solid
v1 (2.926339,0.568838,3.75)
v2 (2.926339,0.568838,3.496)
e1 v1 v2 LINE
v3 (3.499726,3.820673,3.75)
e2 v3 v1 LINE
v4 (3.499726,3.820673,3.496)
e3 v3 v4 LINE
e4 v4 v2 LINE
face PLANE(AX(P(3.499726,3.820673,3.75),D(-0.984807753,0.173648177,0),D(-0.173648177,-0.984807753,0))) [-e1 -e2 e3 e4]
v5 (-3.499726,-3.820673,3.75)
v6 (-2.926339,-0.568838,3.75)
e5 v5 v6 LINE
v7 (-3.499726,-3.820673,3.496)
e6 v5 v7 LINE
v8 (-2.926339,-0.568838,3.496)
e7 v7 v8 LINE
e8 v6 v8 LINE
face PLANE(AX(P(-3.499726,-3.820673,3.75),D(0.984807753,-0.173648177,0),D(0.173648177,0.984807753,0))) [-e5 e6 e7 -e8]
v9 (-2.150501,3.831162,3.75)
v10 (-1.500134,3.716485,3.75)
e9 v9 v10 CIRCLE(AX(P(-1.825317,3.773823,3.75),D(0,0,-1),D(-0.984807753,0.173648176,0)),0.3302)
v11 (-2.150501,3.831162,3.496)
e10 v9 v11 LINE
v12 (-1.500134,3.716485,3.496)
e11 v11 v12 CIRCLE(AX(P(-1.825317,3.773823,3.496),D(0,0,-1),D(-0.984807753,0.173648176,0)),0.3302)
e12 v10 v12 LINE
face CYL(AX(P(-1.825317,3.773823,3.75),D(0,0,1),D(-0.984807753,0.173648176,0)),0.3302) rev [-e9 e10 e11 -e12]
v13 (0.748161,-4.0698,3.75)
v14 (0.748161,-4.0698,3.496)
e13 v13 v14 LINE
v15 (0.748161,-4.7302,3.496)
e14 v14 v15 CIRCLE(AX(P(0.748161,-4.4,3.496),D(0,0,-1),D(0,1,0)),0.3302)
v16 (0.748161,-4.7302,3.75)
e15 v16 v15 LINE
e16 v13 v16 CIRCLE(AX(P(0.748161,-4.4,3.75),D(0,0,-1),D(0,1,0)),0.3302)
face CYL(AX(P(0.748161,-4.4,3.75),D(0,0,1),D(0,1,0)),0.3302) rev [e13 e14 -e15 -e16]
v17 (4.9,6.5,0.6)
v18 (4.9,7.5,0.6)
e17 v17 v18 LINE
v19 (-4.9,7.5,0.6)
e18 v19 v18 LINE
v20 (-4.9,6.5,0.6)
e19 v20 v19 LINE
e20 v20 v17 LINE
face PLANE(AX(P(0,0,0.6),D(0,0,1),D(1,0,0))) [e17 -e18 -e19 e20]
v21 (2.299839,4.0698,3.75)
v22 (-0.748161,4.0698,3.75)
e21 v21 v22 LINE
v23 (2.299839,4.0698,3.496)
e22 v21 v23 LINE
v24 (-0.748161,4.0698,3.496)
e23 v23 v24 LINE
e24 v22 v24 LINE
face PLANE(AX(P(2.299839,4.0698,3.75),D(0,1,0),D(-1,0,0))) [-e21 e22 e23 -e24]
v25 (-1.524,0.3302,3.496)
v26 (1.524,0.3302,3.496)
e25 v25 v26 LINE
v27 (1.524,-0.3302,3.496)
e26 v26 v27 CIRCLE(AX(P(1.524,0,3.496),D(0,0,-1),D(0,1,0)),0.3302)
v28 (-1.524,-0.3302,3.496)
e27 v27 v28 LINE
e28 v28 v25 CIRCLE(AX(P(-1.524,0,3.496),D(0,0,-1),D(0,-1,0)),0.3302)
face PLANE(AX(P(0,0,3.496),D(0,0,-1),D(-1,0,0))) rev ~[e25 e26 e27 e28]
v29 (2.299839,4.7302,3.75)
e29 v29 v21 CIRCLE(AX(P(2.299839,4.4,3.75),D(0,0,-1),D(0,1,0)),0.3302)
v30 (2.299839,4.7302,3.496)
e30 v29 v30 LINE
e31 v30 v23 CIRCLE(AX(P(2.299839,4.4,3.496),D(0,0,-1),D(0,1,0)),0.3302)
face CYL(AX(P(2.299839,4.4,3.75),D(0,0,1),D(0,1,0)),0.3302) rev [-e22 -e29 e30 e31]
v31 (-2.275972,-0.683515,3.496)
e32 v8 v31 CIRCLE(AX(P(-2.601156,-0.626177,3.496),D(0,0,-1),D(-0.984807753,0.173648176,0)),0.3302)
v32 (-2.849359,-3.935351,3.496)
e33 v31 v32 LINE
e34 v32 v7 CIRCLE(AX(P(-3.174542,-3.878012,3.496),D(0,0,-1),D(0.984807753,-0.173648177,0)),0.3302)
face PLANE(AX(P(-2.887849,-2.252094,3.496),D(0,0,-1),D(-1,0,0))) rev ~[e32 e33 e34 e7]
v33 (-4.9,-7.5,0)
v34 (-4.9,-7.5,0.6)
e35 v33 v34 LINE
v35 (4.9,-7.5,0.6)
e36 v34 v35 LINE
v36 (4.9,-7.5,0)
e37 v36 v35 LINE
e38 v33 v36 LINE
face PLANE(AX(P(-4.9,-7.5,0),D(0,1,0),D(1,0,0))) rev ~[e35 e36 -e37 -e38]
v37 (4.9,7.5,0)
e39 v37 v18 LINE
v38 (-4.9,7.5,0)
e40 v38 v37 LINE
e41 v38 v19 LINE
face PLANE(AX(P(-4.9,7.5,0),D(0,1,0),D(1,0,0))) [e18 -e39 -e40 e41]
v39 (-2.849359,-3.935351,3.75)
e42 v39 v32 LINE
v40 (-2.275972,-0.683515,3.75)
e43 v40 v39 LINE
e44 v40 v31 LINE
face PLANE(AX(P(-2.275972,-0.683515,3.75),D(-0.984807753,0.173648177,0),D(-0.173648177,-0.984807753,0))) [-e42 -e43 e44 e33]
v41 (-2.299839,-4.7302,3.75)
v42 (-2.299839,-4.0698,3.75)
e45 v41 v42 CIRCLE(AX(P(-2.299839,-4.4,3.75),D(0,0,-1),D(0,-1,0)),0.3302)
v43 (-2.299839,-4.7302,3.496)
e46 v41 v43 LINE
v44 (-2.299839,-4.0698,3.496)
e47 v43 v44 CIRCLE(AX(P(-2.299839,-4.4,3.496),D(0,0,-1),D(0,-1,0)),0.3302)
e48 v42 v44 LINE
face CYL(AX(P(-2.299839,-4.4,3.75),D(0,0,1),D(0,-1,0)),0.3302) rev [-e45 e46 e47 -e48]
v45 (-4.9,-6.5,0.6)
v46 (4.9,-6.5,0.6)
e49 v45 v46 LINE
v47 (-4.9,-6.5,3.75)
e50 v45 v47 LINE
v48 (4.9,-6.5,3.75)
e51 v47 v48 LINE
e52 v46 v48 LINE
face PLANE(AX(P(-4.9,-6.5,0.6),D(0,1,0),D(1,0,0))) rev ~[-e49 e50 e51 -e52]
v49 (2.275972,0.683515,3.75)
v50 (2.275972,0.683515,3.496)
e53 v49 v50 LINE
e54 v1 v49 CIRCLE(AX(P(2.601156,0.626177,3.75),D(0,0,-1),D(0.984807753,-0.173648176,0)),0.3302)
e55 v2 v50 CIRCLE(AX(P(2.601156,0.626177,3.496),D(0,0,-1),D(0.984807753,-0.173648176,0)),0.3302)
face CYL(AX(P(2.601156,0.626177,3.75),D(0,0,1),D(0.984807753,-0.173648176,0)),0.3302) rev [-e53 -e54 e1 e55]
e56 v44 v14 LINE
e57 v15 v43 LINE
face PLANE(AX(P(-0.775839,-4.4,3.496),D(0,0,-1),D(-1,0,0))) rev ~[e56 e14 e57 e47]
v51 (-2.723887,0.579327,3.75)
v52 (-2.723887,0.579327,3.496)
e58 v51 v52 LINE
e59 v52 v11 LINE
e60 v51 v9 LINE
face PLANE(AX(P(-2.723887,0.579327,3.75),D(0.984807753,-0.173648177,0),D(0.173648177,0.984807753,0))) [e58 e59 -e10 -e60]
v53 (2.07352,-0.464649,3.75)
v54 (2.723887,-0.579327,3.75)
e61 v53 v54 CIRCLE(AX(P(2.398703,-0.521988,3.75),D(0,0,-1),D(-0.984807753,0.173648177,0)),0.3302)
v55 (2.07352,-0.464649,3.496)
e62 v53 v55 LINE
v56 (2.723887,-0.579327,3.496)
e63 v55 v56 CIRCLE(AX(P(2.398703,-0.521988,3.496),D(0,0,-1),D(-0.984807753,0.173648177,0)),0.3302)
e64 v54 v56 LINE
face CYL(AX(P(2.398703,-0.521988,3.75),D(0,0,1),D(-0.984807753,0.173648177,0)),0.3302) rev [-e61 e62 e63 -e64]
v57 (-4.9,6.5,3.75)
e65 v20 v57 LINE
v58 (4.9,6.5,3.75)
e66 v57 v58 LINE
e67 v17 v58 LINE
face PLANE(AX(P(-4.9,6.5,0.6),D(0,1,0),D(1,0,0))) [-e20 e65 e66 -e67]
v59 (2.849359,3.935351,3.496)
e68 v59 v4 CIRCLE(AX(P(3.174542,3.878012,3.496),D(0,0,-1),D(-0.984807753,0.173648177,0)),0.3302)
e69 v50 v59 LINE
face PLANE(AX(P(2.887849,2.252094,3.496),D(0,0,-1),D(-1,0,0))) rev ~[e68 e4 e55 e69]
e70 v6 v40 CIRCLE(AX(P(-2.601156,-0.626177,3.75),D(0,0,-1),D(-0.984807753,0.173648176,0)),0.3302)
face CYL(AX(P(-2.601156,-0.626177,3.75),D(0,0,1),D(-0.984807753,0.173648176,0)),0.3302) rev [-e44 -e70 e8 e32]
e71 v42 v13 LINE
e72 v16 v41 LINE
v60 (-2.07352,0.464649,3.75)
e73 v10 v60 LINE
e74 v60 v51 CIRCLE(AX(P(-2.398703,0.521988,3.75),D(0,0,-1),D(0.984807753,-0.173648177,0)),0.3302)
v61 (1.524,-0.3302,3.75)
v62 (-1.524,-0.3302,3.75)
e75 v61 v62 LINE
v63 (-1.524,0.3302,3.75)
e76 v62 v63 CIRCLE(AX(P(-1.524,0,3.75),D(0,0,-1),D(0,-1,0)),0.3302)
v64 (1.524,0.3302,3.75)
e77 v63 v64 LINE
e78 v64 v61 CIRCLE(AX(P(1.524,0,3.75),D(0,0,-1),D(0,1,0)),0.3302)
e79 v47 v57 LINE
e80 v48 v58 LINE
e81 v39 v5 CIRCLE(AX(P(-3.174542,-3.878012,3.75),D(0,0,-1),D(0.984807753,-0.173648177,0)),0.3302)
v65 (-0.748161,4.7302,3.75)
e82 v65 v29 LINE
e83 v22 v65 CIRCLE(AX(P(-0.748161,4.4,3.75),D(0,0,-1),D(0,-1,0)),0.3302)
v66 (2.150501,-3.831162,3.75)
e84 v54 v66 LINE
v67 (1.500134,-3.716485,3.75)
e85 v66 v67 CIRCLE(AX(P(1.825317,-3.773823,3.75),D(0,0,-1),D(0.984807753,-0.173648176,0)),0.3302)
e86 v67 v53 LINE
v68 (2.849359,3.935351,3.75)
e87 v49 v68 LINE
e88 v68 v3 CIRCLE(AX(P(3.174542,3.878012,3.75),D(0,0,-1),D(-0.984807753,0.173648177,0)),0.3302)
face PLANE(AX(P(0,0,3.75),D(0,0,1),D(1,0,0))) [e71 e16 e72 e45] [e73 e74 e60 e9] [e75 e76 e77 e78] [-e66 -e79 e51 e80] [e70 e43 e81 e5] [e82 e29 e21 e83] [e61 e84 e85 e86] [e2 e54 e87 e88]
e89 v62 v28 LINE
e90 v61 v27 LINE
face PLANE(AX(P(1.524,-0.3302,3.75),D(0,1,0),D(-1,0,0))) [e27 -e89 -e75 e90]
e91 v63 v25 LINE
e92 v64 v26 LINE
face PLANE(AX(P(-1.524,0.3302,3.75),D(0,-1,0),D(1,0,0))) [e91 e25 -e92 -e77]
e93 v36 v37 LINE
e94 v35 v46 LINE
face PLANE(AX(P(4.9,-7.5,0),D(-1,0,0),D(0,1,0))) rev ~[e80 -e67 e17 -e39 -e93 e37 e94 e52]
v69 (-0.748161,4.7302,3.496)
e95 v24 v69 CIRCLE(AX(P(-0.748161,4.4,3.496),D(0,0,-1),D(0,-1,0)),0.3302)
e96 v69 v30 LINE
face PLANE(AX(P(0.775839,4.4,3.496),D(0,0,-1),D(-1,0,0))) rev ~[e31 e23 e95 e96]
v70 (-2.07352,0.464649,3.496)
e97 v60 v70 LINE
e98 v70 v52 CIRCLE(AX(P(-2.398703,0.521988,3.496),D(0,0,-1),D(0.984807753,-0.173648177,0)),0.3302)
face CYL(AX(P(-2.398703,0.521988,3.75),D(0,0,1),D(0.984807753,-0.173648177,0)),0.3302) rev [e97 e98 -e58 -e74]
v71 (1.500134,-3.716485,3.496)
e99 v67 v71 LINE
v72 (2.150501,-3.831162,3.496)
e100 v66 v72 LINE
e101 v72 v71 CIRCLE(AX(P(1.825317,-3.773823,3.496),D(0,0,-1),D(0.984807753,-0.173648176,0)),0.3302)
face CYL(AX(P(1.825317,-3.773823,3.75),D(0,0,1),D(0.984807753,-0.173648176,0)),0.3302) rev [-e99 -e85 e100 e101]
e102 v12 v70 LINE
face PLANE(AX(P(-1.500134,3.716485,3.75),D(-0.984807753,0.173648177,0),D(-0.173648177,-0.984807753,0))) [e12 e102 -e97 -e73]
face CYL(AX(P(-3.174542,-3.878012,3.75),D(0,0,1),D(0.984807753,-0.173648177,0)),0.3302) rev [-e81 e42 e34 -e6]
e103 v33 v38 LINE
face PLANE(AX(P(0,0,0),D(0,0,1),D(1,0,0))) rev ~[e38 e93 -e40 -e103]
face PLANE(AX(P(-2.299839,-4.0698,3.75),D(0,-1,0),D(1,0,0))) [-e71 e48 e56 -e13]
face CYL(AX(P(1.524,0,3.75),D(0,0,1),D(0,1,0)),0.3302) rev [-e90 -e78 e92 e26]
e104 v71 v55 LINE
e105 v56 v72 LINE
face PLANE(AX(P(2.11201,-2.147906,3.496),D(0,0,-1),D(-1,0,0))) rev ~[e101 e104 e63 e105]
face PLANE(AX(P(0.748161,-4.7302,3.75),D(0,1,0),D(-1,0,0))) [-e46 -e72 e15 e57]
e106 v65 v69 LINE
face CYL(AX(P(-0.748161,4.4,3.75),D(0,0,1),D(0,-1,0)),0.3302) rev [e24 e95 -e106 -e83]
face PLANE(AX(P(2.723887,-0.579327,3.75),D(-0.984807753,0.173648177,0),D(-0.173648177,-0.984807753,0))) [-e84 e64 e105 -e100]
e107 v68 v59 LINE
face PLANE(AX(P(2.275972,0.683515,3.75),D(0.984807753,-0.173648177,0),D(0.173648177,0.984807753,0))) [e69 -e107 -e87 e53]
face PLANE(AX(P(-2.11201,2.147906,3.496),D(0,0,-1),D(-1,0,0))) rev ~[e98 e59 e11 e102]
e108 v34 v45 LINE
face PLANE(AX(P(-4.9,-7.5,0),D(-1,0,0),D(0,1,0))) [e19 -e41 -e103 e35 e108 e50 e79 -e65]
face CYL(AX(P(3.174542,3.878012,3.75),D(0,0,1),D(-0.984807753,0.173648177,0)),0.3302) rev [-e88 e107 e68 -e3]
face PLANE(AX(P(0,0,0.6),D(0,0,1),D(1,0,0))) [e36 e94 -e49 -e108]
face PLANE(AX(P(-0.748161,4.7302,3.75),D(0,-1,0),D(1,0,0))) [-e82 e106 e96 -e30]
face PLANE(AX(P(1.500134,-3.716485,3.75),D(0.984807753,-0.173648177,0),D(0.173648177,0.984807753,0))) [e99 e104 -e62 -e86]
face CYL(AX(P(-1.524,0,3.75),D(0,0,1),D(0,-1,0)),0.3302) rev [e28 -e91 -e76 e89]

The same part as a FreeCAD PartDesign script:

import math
import FreeCAD as App
import Part
import Sketcher
from FreeCAD import Vector
Q = App.Units.Quantity

doc = App.newDocument("Part")
body = doc.addObject("PartDesign::Body", "Body")

# Sketch on XY plane
sketch1 = body.newObject("Sketcher::SketchObject", "Sketch")
sketch1.AttachmentSupport = (doc.getObject("XY_Plane"), [""])
sketch1.MapMode = "FlatFace"
sketch1.addGeometry(Part.LineSegment(Vector(-5, 8, 0), Vector(-5, -8, 0)), False)
sketch1.addGeometry(Part.LineSegment(Vector(-5, -8, 0), Vector(5, -8, 0)), False)
sketch1.addGeometry(Part.LineSegment(Vector(5, -8, 0), Vector(5, 8, 0)), False)
sketch1.addGeometry(Part.LineSegment(Vector(5, 8, 0), Vector(-5, 8, 0)), False)
sketch1.addConstraint(Sketcher.Constraint("Coincident", 0, 2, 1, 1))
sketch1.addConstraint(Sketcher.Constraint("Coincident", 1, 2, 2, 1))
sketch1.addConstraint(Sketcher.Constraint("Coincident", 2, 2, 3, 1))
sketch1.addConstraint(Sketcher.Constraint("Coincident", 3, 2, 0, 1))
sketch1.addConstraint(Sketcher.Constraint("Vertical", 0))
sketch1.addConstraint(Sketcher.Constraint("Horizontal", 1))
sketch1.addConstraint(Sketcher.Constraint("Vertical", 2))
sketch1.addConstraint(Sketcher.Constraint("Horizontal", 3))
sketch1.addConstraint(Sketcher.Constraint("Symmetric", 0, 2, 2, 2, -1, 1))
sketch1.addConstraint(Sketcher.Constraint("DistanceY", 0, 2, 0, 1, 15.0))
sketch1.addConstraint(Sketcher.Constraint("DistanceX", 1, 1, 1, 2, 9.8))
pad1 = body.newObject("PartDesign::Pad", "Pad")
pad1.Profile = sketch1
pad1.Length = 0.6

# Sketch on XY plane
sketch2 = body.newObject("Sketcher::SketchObject", "Sketch001")
sketch2.AttachmentSupport = (doc.getObject("XY_Plane"), [""])
sketch2.MapMode = "FlatFace"
sketch2.AttachmentOffset = App.Placement(Vector(0, 0, 0.6), App.Rotation())
sketch2.addGeometry(Part.LineSegment(Vector(-5, 6, 0), Vector(-5, -6, 0)), False)
sketch2.addGeometry(Part.LineSegment(Vector(-5, -6, 0), Vector(5, -6, 0)), False)
sketch2.addGeometry(Part.LineSegment(Vector(5, -6, 0), Vector(5, 6, 0)), False)
sketch2.addGeometry(Part.LineSegment(Vector(5, 6, 0), Vector(-5, 6, 0)), False)
sketch2.addConstraint(Sketcher.Constraint("Coincident", 0, 2, 1, 1))
sketch2.addConstraint(Sketcher.Constraint("Coincident", 1, 2, 2, 1))
sketch2.addConstraint(Sketcher.Constraint("Coincident", 2, 2, 3, 1))
sketch2.addConstraint(Sketcher.Constraint("Coincident", 3, 2, 0, 1))
sketch2.addConstraint(Sketcher.Constraint("Vertical", 0))
sketch2.addConstraint(Sketcher.Constraint("Horizontal", 1))
sketch2.addConstraint(Sketcher.Constraint("Vertical", 2))
sketch2.addConstraint(Sketcher.Constraint("Horizontal", 3))
sketch2.addConstraint(Sketcher.Constraint("Symmetric", 0, 2, 2, 2, -1, 1))
sketch2.addConstraint(Sketcher.Constraint("DistanceY", 0, 2, 0, 1, 13.0))
sketch2.addConstraint(Sketcher.Constraint("DistanceX", 1, 1, 1, 2, 9.8))
pad2 = body.newObject("PartDesign::Pad", "Pad001")
pad2.Profile = sketch2
pad2.Length = 3.15

# Sketch on XY plane
sketch3 = body.newObject("Sketcher::SketchObject", "Sketch002")
sketch3.AttachmentSupport = (doc.getObject("XY_Plane"), [""])
sketch3.MapMode = "FlatFace"
sketch3.AttachmentOffset = App.Placement(Vector(0, 0, 3.75), App.Rotation())
sketch3.addGeometry(Part.LineSegment(Vector(-2.15, 3.83, 0), Vector(-2.72, 0.58, 0)), False)
sketch3.addGeometry(Part.ArcOfCircle(Part.Circle(Vector(-2.4, 0.52, 0), Vector(0, 0, 1), 0.33), math.radians(170), math.radians(350)), False)
sketch3.addGeometry(Part.LineSegment(Vector(-2.07, 0.46, 0), Vector(-1.5, 3.72, 0)), False)
sketch3.addGeometry(Part.ArcOfCircle(Part.Circle(Vector(-1.83, 3.77, 0), Vector(0, 0, 1), 0.33), math.radians(-10), math.radians(170)), False)
sketch3.addGeometry(Part.LineSegment(Vector(2.93, 0.57, 0), Vector(3.5, 3.82, 0)), False)
sketch3.addGeometry(Part.ArcOfCircle(Part.Circle(Vector(3.17, 3.88, 0), Vector(0, 0, 1), 0.33), math.radians(-10), math.radians(170)), False)
sketch3.addGeometry(Part.LineSegment(Vector(2.85, 3.94, 0), Vector(2.28, 0.68, 0)), False)
sketch3.addGeometry(Part.ArcOfCircle(Part.Circle(Vector(2.6, 0.63, 0), Vector(0, 0, 1), 0.33), math.radians(170), math.radians(350)), False)
sketch3.addGeometry(Part.LineSegment(Vector(-2.93, -0.57, 0), Vector(-3.5, -3.82, 0)), False)
sketch3.addGeometry(Part.ArcOfCircle(Part.Circle(Vector(-3.17, -3.88, 0), Vector(0, 0, 1), 0.33), math.radians(170), math.radians(350)), False)
sketch3.addGeometry(Part.LineSegment(Vector(-2.85, -3.94, 0), Vector(-2.28, -0.68, 0)), False)
sketch3.addGeometry(Part.ArcOfCircle(Part.Circle(Vector(-2.6, -0.63, 0), Vector(0, 0, 1), 0.33), math.radians(-10), math.radians(170)), False)
sketch3.addGeometry(Part.LineSegment(Vector(2.07, -0.46, 0), Vector(1.5, -3.72, 0)), False)
sketch3.addGeometry(Part.ArcOfCircle(Part.Circle(Vector(1.83, -3.77, 0), Vector(0, 0, 1), 0.33), math.radians(170), math.radians(350)), False)
sketch3.addGeometry(Part.LineSegment(Vector(2.15, -3.83, 0), Vector(2.72, -0.58, 0)), False)
sketch3.addGeometry(Part.ArcOfCircle(Part.Circle(Vector(2.4, -0.52, 0), Vector(0, 0, 1), 0.33), math.radians(-10), math.radians(170)), False)
sketch3.addGeometry(Part.LineSegment(Vector(0.75, -4.07, 0), Vector(-2.3, -4.07, 0)), False)
sketch3.addGeometry(Part.ArcOfCircle(Part.Circle(Vector(-2.3, -4.4, 0), Vector(0, 0, 1), 0.33), math.radians(90), math.radians(270)), False)
sketch3.addGeometry(Part.LineSegment(Vector(-2.3, -4.73, 0), Vector(0.75, -4.73, 0)), False)
sketch3.addGeometry(Part.ArcOfCircle(Part.Circle(Vector(0.75, -4.4, 0), Vector(0, 0, 1), 0.33), math.radians(-90), math.radians(90)), False)
sketch3.addGeometry(Part.LineSegment(Vector(1.52, 0.33, 0), Vector(-1.52, 0.33, 0)), False)
sketch3.addGeometry(Part.ArcOfCircle(Part.Circle(Vector(-1.52, 0, 0), Vector(0, 0, 1), 0.33), math.radians(90), math.radians(270)), False)
sketch3.addGeometry(Part.LineSegment(Vector(-1.52, -0.33, 0), Vector(1.52, -0.33, 0)), False)
sketch3.addGeometry(Part.ArcOfCircle(Part.Circle(Vector(1.52, 0, 0), Vector(0, 0, 1), 0.33), math.radians(-90), math.radians(90)), False)
sketch3.addGeometry(Part.LineSegment(Vector(2.3, 4.73, 0), Vector(-0.75, 4.73, 0)), False)
sketch3.addGeometry(Part.ArcOfCircle(Part.Circle(Vector(-0.75, 4.4, 0), Vector(0, 0, 1), 0.33), math.radians(90), math.radians(270)), False)
sketch3.addGeometry(Part.LineSegment(Vector(-0.75, 4.07, 0), Vector(2.3, 4.07, 0)), False)
sketch3.addGeometry(Part.ArcOfCircle(Part.Circle(Vector(2.3, 4.4, 0), Vector(0, 0, 1), 0.33), math.radians(-90), math.radians(90)), False)
sketch3.addConstraint(Sketcher.Constraint("Tangent", 0, 2, 1, 1))
sketch3.addConstraint(Sketcher.Constraint("Tangent", 1, 2, 2, 1))
sketch3.addConstraint(Sketcher.Constraint("Tangent", 2, 2, 3, 1))
sketch3.addConstraint(Sketcher.Constraint("Tangent", 3, 2, 0, 1))
sketch3.addConstraint(Sketcher.Constraint("Tangent", 4, 2, 5, 1))
sketch3.addConstraint(Sketcher.Constraint("Tangent", 5, 2, 6, 1))
sketch3.addConstraint(Sketcher.Constraint("Tangent", 6, 2, 7, 1))
sketch3.addConstraint(Sketcher.Constraint("Tangent", 7, 2, 4, 1))
sketch3.addConstraint(Sketcher.Constraint("Tangent", 8, 2, 9, 1))
sketch3.addConstraint(Sketcher.Constraint("Tangent", 9, 2, 10, 1))
sketch3.addConstraint(Sketcher.Constraint("Tangent", 10, 2, 11, 1))
sketch3.addConstraint(Sketcher.Constraint("Tangent", 11, 2, 8, 1))
sketch3.addConstraint(Sketcher.Constraint("Tangent", 12, 2, 13, 1))
sketch3.addConstraint(Sketcher.Constraint("Tangent", 13, 2, 14, 1))
sketch3.addConstraint(Sketcher.Constraint("Tangent", 14, 2, 15, 1))
sketch3.addConstraint(Sketcher.Constraint("Tangent", 15, 2, 12, 1))
sketch3.addConstraint(Sketcher.Constraint("Tangent", 16, 2, 17, 1))
sketch3.addConstraint(Sketcher.Constraint("Tangent", 17, 2, 18, 1))
sketch3.addConstraint(Sketcher.Constraint("Tangent", 18, 2, 19, 1))
sketch3.addConstraint(Sketcher.Constraint("Tangent", 19, 2, 16, 1))
sketch3.addConstraint(Sketcher.Constraint("Tangent", 20, 2, 21, 1))
sketch3.addConstraint(Sketcher.Constraint("Tangent", 21, 2, 22, 1))
sketch3.addConstraint(Sketcher.Constraint("Tangent", 22, 2, 23, 1))
sketch3.addConstraint(Sketcher.Constraint("Tangent", 23, 2, 20, 1))
sketch3.addConstraint(Sketcher.Constraint("Tangent", 24, 2, 25, 1))
sketch3.addConstraint(Sketcher.Constraint("Tangent", 25, 2, 26, 1))
sketch3.addConstraint(Sketcher.Constraint("Tangent", 26, 2, 27, 1))
sketch3.addConstraint(Sketcher.Constraint("Tangent", 27, 2, 24, 1))
sketch3.addConstraint(Sketcher.Constraint("Horizontal", 16))
sketch3.addConstraint(Sketcher.Constraint("Horizontal", 18))
sketch3.addConstraint(Sketcher.Constraint("Horizontal", 20))
sketch3.addConstraint(Sketcher.Constraint("Horizontal", 22))
sketch3.addConstraint(Sketcher.Constraint("Horizontal", 24))
sketch3.addConstraint(Sketcher.Constraint("Horizontal", 26))
sketch3.addConstraint(Sketcher.Constraint("Equal", 1, 3))
sketch3.addConstraint(Sketcher.Constraint("Equal", 3, 5))
sketch3.addConstraint(Sketcher.Constraint("Equal", 5, 7))
sketch3.addConstraint(Sketcher.Constraint("Equal", 7, 9))
sketch3.addConstraint(Sketcher.Constraint("Equal", 9, 11))
sketch3.addConstraint(Sketcher.Constraint("Equal", 11, 13))
sketch3.addConstraint(Sketcher.Constraint("Equal", 13, 15))
sketch3.addConstraint(Sketcher.Constraint("Equal", 15, 17))
sketch3.addConstraint(Sketcher.Constraint("Equal", 19, 21))
sketch3.addConstraint(Sketcher.Constraint("Equal", 23, 25))
sketch3.addConstraint(Sketcher.Constraint("Symmetric", 5, 3, 9, 3, -1, 1))
sketch3.addConstraint(Sketcher.Constraint("Symmetric", 7, 3, 11, 3, -1, 1))
sketch3.addConstraint(Sketcher.Constraint("Symmetric", 3, 3, 13, 3, -1, 1))
sketch3.addConstraint(Sketcher.Constraint("Symmetric", 1, 3, 15, 3, -1, 1))
sketch3.addConstraint(Sketcher.Constraint("Symmetric", 21, 3, 23, 3, -1, 1))
sketch3.addConstraint(Sketcher.Constraint("Symmetric", 19, 3, 25, 3, -1, 1))
sketch3.addConstraint(Sketcher.Constraint("Parallel", 2, 4))
sketch3.addConstraint(Sketcher.Constraint("Equal", 18, 20))
sketch3.addConstraint(Sketcher.Constraint("Equal", 22, 24))
sketch3.addConstraint(Sketcher.Constraint("Equal", 2, 4))
sketch3.addConstraint(Sketcher.Constraint("Angle", 0, Q("-100 deg")))
sketch3.addConstraint(Sketcher.Constraint("DistanceY", 17, 3, -1, 1, 4.4))
sketch3.addConstraint(Sketcher.Constraint("Radius", 1, 0.3302))
sketch3.addConstraint(Sketcher.Constraint("DistanceY", 9, 3, 1, 3, 4.4))
sketch3.addConstraint(Sketcher.Constraint("DistanceX", 16, 2, 16, 1, 3.048))
sketch3.addConstraint(Sketcher.Constraint("Distance", 0, 3.302))
sketch3.addConstraint(Sketcher.Constraint("DistanceX", 3, 2, -1, 1, 2.150501))
sketch3.addConstraint(Sketcher.Constraint("DistanceX", 9, 3, 7, 3, 5.775698))
sketch3.addConstraint(Sketcher.Constraint("DistanceX", 17, 3, -1, 1, 2.299839))
sketch3.addConstraint(Sketcher.Constraint("DistanceY", -1, 1, 1, 2, 0.464649))
pocket1 = body.newObject("PartDesign::Pocket", "Pocket")
pocket1.Profile = sketch3
pocket1.Length = 0.254

doc.recompute()
